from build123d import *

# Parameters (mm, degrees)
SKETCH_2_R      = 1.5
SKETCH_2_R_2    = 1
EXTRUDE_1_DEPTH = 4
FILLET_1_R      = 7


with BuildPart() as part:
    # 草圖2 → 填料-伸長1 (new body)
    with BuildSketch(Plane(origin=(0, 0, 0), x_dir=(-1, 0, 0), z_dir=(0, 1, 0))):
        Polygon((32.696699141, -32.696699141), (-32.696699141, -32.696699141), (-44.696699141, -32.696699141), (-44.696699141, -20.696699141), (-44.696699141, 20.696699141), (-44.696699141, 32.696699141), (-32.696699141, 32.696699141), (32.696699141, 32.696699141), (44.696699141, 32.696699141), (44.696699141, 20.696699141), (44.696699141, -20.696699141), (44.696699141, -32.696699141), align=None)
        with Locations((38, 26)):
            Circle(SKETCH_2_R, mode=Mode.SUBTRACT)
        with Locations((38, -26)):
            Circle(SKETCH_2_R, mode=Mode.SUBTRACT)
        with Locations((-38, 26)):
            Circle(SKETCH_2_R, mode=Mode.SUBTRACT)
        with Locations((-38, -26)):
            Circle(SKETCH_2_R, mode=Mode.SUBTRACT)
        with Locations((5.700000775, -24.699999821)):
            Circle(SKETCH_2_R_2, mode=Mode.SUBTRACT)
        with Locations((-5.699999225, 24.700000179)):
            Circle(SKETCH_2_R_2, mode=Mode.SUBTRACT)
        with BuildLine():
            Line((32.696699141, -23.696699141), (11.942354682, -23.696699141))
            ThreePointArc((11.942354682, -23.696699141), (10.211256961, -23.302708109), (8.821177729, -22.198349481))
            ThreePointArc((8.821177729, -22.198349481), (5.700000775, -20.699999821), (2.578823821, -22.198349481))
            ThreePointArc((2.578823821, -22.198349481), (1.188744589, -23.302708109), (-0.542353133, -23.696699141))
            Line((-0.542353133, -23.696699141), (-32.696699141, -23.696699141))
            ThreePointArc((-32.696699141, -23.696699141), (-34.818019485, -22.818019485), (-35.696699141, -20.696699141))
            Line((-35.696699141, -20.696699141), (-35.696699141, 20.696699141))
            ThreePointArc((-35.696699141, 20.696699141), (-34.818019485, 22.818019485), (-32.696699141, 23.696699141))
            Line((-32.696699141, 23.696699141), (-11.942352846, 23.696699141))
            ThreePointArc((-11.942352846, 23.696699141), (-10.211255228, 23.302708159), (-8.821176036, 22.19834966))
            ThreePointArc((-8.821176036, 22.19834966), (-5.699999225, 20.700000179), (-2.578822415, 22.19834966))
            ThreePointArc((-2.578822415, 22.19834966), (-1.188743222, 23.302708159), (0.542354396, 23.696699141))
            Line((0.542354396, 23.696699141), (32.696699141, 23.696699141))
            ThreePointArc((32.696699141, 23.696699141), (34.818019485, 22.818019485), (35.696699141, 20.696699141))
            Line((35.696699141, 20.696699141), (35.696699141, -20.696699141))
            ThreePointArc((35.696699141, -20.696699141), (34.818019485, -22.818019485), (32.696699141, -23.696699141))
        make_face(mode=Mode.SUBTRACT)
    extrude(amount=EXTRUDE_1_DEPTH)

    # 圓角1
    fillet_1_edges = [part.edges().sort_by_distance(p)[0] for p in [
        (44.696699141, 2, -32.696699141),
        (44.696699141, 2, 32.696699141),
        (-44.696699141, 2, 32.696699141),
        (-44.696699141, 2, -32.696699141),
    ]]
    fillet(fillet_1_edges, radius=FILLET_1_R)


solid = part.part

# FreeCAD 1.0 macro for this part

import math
import FreeCAD as App
import Part
import Sketcher

V = App.Vector


def edges_at(feature, points):
    """Names of the edges that pass closest to the given points."""
    edges = feature.Shape.Edges
    near = lambda p: min(range(len(edges)), key=lambda i: edges[i].distToShape(Part.Vertex(*p))[0])
    return sorted({f"Edge{near(p) + 1}" for p in points})

doc = App.newDocument("Part")
body = doc.addObject("PartDesign::Body", "Body")

# Sketch on XZ plane
sketch1 = body.newObject("Sketcher::SketchObject", "Sketch")
sketch1.AttachmentSupport = (doc.getObject("XZ_Plane"), [""])
sketch1.MapMode = "FlatFace"
sketch1.addGeometry(Part.LineSegment(V(44.7, -32.7, 0), V(-44.7, -32.7, 0)), False)
sketch1.addGeometry(Part.LineSegment(V(-44.7, -32.7, 0), V(-44.7, 32.7, 0)), False)
sketch1.addGeometry(Part.LineSegment(V(-44.7, 32.7, 0), V(44.7, 32.7, 0)), False)
sketch1.addGeometry(Part.LineSegment(V(44.7, 32.7, 0), V(44.7, -32.7, 0)), False)
sketch1.addGeometry(Part.Circle(V(-38, -26, 0), V(0, 0, 1), 1.5), False)
sketch1.addGeometry(Part.Circle(V(-5.7, -24.7, 0), V(0, 0, 1), 1), False)
sketch1.addGeometry(Part.Circle(V(38, -26, 0), V(0, 0, 1), 1.5), False)
sketch1.addGeometry(Part.Circle(V(-38, 26, 0), V(0, 0, 1), 1.5), False)
sketch1.addGeometry(Part.LineSegment(V(-32.7, -23.7, 0), V(-11.9, -23.7, 0)), False)
sketch1.addGeometry(Part.ArcOfCircle(Part.Circle(V(-11.9, -19.7, 0), V(0, 0, 1), 4), math.radians(-90), math.radians(-39)), False)
sketch1.addGeometry(Part.ArcOfCircle(Part.Circle(V(-5.7, -24.7, 0), V(0, 0, 1), 4), math.radians(39), math.radians(141)), False)
sketch1.addGeometry(Part.ArcOfCircle(Part.Circle(V(0.5, -19.7, 0), V(0, 0, 1), 4), math.radians(-141), math.radians(-90)), False)
sketch1.addGeometry(Part.LineSegment(V(0.5, -23.7, 0), V(32.7, -23.7, 0)), False)
sketch1.addGeometry(Part.ArcOfCircle(Part.Circle(V(32.7, -20.7, 0), V(0, 0, 1), 3), math.radians(-90), math.radians(0)), False)
sketch1.addGeometry(Part.LineSegment(V(35.7, -20.7, 0), V(35.7, 20.7, 0)), False)
sketch1.addGeometry(Part.ArcOfCircle(Part.Circle(V(32.7, 20.7, 0), V(0, 0, 1), 3), math.radians(0), math.radians(90)), False)
sketch1.addGeometry(Part.LineSegment(V(32.7, 23.7, 0), V(11.9, 23.7, 0)), False)
sketch1.addGeometry(Part.ArcOfCircle(Part.Circle(V(11.9, 19.7, 0), V(0, 0, 1), 4), math.radians(90), math.radians(141)), False)
sketch1.addGeometry(Part.ArcOfCircle(Part.Circle(V(5.7, 24.7, 0), V(0, 0, 1), 4), math.radians(-141), math.radians(-39)), False)
sketch1.addGeometry(Part.ArcOfCircle(Part.Circle(V(-0.5, 19.7, 0), V(0, 0, 1), 4), math.radians(39), math.radians(90)), False)
sketch1.addGeometry(Part.LineSegment(V(-0.5, 23.7, 0), V(-32.7, 23.7, 0)), False)
sketch1.addGeometry(Part.ArcOfCircle(Part.Circle(V(-32.7, 20.7, 0), V(0, 0, 1), 3), math.radians(90), math.radians(180)), False)
sketch1.addGeometry(Part.LineSegment(V(-35.7, 20.7, 0), V(-35.7, -20.7, 0)), False)
sketch1.addGeometry(Part.ArcOfCircle(Part.Circle(V(-32.7, -20.7, 0), V(0, 0, 1), 3), math.radians(180), math.radians(270)), False)
sketch1.addGeometry(Part.Circle(V(5.7, 24.7, 0), V(0, 0, 1), 1), False)
sketch1.addGeometry(Part.Circle(V(38, 26, 0), V(0, 0, 1), 1.5), False)
sketch1.addConstraint(Sketcher.Constraint("Coincident", 0, 2, 1, 1))
sketch1.addConstraint(Sketcher.Constraint("Coincident", 1, 2, 2, 1))
sketch1.addConstraint(Sketcher.Constraint("Coincident", 2, 2, 3, 1))
sketch1.addConstraint(Sketcher.Constraint("Coincident", 3, 2, 0, 1))
sketch1.addConstraint(Sketcher.Constraint("Tangent", 8, 2, 9, 1))
sketch1.addConstraint(Sketcher.Constraint("Tangent", 9, 2, 10, 2))
sketch1.addConstraint(Sketcher.Constraint("Tangent", 10, 1, 11, 1))
sketch1.addConstraint(Sketcher.Constraint("Tangent", 11, 2, 12, 1))
sketch1.addConstraint(Sketcher.Constraint("Tangent", 12, 2, 13, 1))
sketch1.addConstraint(Sketcher.Constraint("Tangent", 13, 2, 14, 1))
sketch1.addConstraint(Sketcher.Constraint("Tangent", 14, 2, 15, 1))
sketch1.addConstraint(Sketcher.Constraint("Tangent", 15, 2, 16, 1))
sketch1.addConstraint(Sketcher.Constraint("Tangent", 16, 2, 17, 1))
sketch1.addConstraint(Sketcher.Constraint("Tangent", 17, 2, 18, 2))
sketch1.addConstraint(Sketcher.Constraint("Tangent", 18, 1, 19, 1))
sketch1.addConstraint(Sketcher.Constraint("Tangent", 19, 2, 20, 1))
sketch1.addConstraint(Sketcher.Constraint("Tangent", 20, 2, 21, 1))
sketch1.addConstraint(Sketcher.Constraint("Tangent", 21, 2, 22, 1))
sketch1.addConstraint(Sketcher.Constraint("Tangent", 22, 2, 23, 1))
sketch1.addConstraint(Sketcher.Constraint("Tangent", 23, 2, 8, 1))
sketch1.addConstraint(Sketcher.Constraint("Horizontal", 0))
sketch1.addConstraint(Sketcher.Constraint("Vertical", 1))
sketch1.addConstraint(Sketcher.Constraint("Horizontal", 2))
sketch1.addConstraint(Sketcher.Constraint("Vertical", 3))
sketch1.addConstraint(Sketcher.Constraint("Horizontal", 8))
sketch1.addConstraint(Sketcher.Constraint("Horizontal", 12))
sketch1.addConstraint(Sketcher.Constraint("Vertical", 14))
sketch1.addConstraint(Sketcher.Constraint("Horizontal", 16))
sketch1.addConstraint(Sketcher.Constraint("Horizontal", 20))
sketch1.addConstraint(Sketcher.Constraint("Vertical", 22))
sketch1.addConstraint(Sketcher.Constraint("Coincident", 10, 3, 5, 3))
sketch1.addConstraint(Sketcher.Constraint("Coincident", 24, 3, 18, 3))
sketch1.addConstraint(Sketcher.Constraint("Equal", 4, 6))
sketch1.addConstraint(Sketcher.Constraint("Equal", 6, 7))
sketch1.addConstraint(Sketcher.Constraint("Equal", 9, 10))
sketch1.addConstraint(Sketcher.Constraint("Equal", 10, 11))
sketch1.addConstraint(Sketcher.Constraint("Equal", 13, 15))
sketch1.addConstraint(Sketcher.Constraint("Equal", 11, 17))
sketch1.addConstraint(Sketcher.Constraint("Equal", 17, 18))
sketch1.addConstraint(Sketcher.Constraint("Equal", 18, 19))
sketch1.addConstraint(Sketcher.Constraint("Equal", 15, 21))
sketch1.addConstraint(Sketcher.Constraint("Equal", 21, 23))
sketch1.addConstraint(Sketcher.Constraint("Equal", 5, 24))
sketch1.addConstraint(Sketcher.Constraint("Equal", 7, 25))
sketch1.addConstraint(Sketcher.Constraint("Symmetric", 6, 3, 7, 3, -1, 1))
sketch1.addConstraint(Sketcher.Constraint("Symmetric", 9, 3, 17, 3, -1, 1))
sketch1.addConstraint(Sketcher.Constraint("Symmetric", 11, 3, 19, 3, -1, 1))
sketch1.addConstraint(Sketcher.Constraint("Symmetric", 4, 3, 25, 3, -1, 1))
sketch1.addConstraint(Sketcher.Constraint("Symmetric", 0, 2, 2, 2, -1, 1))
sketch1.addConstraint(Sketcher.Constraint("Symmetric", 4, 3, 6, 3, -2))
sketch1.addConstraint(Sketcher.Constraint("Symmetric", 15, 3, 21, 3, -2))
sketch1.addConstraint(Sketcher.Constraint("Diameter", 4, 3.0))
sketch1.addConstraint(Sketcher.Constraint("Diameter", 5, 2.0))
sketch1.addConstraint(Sketcher.Constraint("Radius", 9, 4.0))
sketch1.addConstraint(Sketcher.Constraint("Radius", 13, 3.0))
sketch1.addConstraint(Sketcher.Constraint("DistanceX", 4, 3, -1, 1, 38.0))
sketch1.addConstraint(Sketcher.Constraint("DistanceY", 4, 3, -1, 1, 26.0))
sketch1.addConstraint(Sketcher.Constraint("DistanceX", 0, 2, 23, 3, 12.0))
sketch1.addConstraint(Sketcher.Constraint("DistanceY", 0, 2, 23, 3, 12.0))
sketch1.addConstraint(Sketcher.Constraint("DistanceX", 5, 3, -1, 1, 5.700001))
sketch1.addConstraint(Sketcher.Constraint("DistanceY", 5, 3, -1, 1, 24.7))
sketch1.addConstraint(Sketcher.Constraint("DistanceX", 0, 2, 0, 1, 89.393398))
sketch1.addConstraint(Sketcher.Constraint("DistanceY", 1, 1, 1, 2, 65.393398))
pad1 = body.newObject("PartDesign::Pad", "Pad")
pad1.Profile = sketch1
pad1.Length = 4
pad1.Reversed = True
doc.recompute()

fillet = body.newObject("PartDesign::Fillet", "Fillet")
fillet.Base = (pad1, edges_at(pad1, [
    (44.697, 2, -32.697),
    (44.697, 2, 32.697),
    (-44.697, 2, 32.697),
    (-44.697, 2, -32.697),
]))
fillet.Radius = 7

doc.recompute()
